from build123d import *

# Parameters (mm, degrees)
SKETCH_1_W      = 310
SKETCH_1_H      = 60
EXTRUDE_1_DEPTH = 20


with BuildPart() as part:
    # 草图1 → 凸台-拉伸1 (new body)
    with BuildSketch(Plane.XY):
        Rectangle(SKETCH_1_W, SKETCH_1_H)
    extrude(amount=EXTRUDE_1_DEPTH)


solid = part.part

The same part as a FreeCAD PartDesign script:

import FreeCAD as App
import Part
import Sketcher

V = App.Vector


def add_polygon(sketch, points):
    """Adds a closed chain of lines whose ends are joined by coincident constraints."""
    first, n = sketch.GeometryCount, len(points)
    for a, b in zip(points, points[1:] + points[:1]):
        sketch.addGeometry(Part.LineSegment(App.Vector(*a, 0), App.Vector(*b, 0)), False)
    for i in range(n):
        sketch.addConstraint(Sketcher.Constraint("Coincident", first + i, 2, first + (i + 1) % n, 1))

doc = App.newDocument("Part")
body = doc.addObject("PartDesign::Body", "Body")

sketch1 = body.newObject("Sketcher::SketchObject", "Sketch")
sketch1.AttachmentSupport = (doc.getObject("XY_Plane"), [""])
sketch1.MapMode = "FlatFace"
add_polygon(sketch1, [(-155, 30), (-155, -30), (155, -30), (155, 30)])
sketch1.addConstraint([
    Sketcher.Constraint("Vertical", 0),
    Sketcher.Constraint("Horizontal", 1),
    Sketcher.Constraint("Vertical", 2),
    Sketcher.Constraint("Horizontal", 3),
    Sketcher.Constraint("Symmetric", 0, 2, 2, 2, -1, 1),
    Sketcher.Constraint("DistanceX", 1, 1, 1, 2, 310.0),
    Sketcher.Constraint("DistanceY", 0, 2, 0, 1, 60.0),
])
pad1 = body.newObject("PartDesign::Pad", "Pad")
pad1.Profile = sketch1
pad1.Length = 20

doc.recompute()
